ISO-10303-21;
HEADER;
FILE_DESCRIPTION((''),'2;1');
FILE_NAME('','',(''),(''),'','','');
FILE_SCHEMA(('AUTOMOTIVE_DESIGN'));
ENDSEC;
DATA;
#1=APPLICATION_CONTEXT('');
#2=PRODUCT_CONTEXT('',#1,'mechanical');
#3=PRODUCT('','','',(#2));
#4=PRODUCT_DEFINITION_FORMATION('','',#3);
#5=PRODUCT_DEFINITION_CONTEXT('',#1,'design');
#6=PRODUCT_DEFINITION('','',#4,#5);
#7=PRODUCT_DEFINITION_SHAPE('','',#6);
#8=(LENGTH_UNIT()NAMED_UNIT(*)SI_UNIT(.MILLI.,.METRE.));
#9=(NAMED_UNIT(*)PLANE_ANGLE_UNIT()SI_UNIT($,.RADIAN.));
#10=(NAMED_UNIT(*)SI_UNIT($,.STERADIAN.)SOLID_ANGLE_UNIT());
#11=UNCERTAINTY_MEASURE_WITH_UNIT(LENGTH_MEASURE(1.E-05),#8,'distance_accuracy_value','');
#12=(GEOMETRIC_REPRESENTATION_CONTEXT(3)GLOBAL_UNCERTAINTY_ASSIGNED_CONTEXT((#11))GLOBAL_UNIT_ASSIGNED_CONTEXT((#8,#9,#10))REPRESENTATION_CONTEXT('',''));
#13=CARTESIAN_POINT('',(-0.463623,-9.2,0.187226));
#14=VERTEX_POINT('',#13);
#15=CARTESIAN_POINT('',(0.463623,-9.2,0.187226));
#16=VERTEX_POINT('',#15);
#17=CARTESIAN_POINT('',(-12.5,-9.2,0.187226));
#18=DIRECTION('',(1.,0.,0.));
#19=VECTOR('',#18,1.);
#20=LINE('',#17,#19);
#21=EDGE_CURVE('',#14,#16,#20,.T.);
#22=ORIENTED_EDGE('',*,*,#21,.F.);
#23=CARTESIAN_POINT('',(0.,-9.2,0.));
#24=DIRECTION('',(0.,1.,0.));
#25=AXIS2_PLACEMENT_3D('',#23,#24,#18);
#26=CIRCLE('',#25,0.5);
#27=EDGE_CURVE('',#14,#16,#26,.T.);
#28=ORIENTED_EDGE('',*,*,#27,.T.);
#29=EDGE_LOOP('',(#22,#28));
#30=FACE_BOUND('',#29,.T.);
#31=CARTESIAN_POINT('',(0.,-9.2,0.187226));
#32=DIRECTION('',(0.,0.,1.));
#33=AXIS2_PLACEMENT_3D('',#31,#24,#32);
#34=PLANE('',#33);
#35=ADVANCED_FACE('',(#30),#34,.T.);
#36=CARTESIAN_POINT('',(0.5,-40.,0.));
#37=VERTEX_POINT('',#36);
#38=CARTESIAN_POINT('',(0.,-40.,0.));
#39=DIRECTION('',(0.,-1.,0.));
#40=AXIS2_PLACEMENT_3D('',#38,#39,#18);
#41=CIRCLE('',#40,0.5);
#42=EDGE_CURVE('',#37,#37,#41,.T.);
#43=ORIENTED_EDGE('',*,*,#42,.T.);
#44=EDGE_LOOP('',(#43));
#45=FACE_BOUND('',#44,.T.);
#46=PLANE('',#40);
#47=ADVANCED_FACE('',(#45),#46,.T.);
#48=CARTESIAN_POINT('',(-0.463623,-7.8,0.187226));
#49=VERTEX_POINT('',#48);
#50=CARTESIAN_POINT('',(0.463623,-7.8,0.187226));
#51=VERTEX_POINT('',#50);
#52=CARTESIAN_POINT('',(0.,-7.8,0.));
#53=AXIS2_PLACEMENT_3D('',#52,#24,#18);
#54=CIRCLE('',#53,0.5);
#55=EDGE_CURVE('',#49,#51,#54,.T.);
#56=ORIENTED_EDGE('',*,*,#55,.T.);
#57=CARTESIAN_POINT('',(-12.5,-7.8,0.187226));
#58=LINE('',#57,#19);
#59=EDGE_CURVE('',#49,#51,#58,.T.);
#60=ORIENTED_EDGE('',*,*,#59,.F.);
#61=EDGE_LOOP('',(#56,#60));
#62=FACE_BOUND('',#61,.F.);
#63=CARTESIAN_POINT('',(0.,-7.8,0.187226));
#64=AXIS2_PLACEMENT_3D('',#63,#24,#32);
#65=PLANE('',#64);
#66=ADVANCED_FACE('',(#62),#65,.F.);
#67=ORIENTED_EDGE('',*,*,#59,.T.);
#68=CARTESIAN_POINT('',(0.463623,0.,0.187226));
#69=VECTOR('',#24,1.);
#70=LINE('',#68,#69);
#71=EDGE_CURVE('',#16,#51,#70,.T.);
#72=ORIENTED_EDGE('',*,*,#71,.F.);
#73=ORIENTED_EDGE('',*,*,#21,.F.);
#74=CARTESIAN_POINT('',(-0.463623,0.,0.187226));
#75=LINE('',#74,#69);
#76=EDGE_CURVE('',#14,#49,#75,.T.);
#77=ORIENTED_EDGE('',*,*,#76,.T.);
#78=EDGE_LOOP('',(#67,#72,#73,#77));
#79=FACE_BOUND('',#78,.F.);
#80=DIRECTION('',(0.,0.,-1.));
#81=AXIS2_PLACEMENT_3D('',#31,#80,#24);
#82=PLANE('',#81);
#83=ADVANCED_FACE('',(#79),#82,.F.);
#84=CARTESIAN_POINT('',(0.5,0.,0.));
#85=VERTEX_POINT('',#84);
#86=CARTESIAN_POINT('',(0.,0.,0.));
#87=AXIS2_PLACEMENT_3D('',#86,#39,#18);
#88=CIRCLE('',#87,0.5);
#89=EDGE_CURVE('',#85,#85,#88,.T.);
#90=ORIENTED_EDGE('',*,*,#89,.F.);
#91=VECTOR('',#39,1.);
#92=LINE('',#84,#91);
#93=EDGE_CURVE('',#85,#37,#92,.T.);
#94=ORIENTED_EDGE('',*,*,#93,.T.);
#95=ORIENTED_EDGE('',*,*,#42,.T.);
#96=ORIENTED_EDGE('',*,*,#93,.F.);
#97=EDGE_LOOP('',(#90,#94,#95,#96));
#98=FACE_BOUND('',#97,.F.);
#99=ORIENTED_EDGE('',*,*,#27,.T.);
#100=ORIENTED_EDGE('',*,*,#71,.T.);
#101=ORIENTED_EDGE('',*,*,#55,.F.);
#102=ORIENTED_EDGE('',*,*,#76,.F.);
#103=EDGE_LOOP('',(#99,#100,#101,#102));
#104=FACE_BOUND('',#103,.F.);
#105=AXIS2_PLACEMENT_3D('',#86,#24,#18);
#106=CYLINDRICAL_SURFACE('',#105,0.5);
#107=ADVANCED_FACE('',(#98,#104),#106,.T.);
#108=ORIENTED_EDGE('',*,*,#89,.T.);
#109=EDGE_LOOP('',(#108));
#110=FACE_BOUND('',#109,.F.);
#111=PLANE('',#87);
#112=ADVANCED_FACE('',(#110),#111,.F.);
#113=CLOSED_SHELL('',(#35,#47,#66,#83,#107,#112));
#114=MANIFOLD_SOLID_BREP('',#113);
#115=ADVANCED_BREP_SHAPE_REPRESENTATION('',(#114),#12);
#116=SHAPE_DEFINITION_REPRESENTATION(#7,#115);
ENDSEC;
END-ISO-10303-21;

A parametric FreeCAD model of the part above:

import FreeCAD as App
import Part
import Sketcher
from FreeCAD import Vector
Q = App.Units.Quantity


def add_polygon(sketch, points):
    """Adds a closed chain of lines whose ends are joined by coincident constraints."""
    first, n = sketch.GeometryCount, len(points)
    for a, b in zip(points, points[1:] + points[:1]):
        sketch.addGeometry(Part.LineSegment(App.Vector(*a, 0), App.Vector(*b, 0)), False)
    for i in range(n):
        sketch.addConstraint(Sketcher.Constraint("Coincident", first + i, 2, first + (i + 1) % n, 1))

doc = App.newDocument("Part")
body = doc.addObject("PartDesign::Body", "Body")

sketch1 = body.newObject("Sketcher::SketchObject", "Sketch")
sketch1.AttachmentSupport = (doc.getObject("XZ_Plane"), [""])
sketch1.MapMode = "FlatFace"
sketch1.addGeometry(Part.Circle(Vector(0, 0, 0), Vector(0, 0, 1), 0.5), False)
sketch1.addConstraint(Sketcher.Constraint("Coincident", 0, 3, -1, 1))
sketch1.addConstraint(Sketcher.Constraint("Diameter", 0, Q("1 mm")))
pad1 = body.newObject("PartDesign::Pad", "Pad")
pad1.Profile = sketch1
pad1.Length = 40

sketch2 = body.newObject("Sketcher::SketchObject", "Sketch001")
sketch2.AttachmentSupport = (doc.getObject("YZ_Plane"), [""])
sketch2.MapMode = "FlatFace"
add_polygon(sketch2, [(-9.2, 0.812774), (-9.2, 0.187226), (-7.8, 0.187226), (-7.8, 0.812774)])
sketch2.addConstraint(Sketcher.Constraint("Vertical", 0))
sketch2.addConstraint(Sketcher.Constraint("Horizontal", 1))
sketch2.addConstraint(Sketcher.Constraint("Vertical", 2))
sketch2.addConstraint(Sketcher.Constraint("Horizontal", 3))
sketch2.addConstraint(Sketcher.Constraint("DistanceX", 1, 1, 1, 2, Q("1.4 mm")))
sketch2.addConstraint(Sketcher.Constraint("DistanceX", 0, 2, -1, 1, Q("9.2 mm")))
sketch2.addConstraint(Sketcher.Constraint("DistanceY", 0, 2, 0, 1, Q("0.625549 mm")))
sketch2.addConstraint(Sketcher.Constraint("DistanceY", -1, 1, 0, 2, Q("0.187226 mm")))
pocket1 = body.newObject("PartDesign::Pocket", "Pocket")
pocket1.Profile = sketch2
pocket1.Length = 25
pocket1.Midplane = True

doc.recompute()
